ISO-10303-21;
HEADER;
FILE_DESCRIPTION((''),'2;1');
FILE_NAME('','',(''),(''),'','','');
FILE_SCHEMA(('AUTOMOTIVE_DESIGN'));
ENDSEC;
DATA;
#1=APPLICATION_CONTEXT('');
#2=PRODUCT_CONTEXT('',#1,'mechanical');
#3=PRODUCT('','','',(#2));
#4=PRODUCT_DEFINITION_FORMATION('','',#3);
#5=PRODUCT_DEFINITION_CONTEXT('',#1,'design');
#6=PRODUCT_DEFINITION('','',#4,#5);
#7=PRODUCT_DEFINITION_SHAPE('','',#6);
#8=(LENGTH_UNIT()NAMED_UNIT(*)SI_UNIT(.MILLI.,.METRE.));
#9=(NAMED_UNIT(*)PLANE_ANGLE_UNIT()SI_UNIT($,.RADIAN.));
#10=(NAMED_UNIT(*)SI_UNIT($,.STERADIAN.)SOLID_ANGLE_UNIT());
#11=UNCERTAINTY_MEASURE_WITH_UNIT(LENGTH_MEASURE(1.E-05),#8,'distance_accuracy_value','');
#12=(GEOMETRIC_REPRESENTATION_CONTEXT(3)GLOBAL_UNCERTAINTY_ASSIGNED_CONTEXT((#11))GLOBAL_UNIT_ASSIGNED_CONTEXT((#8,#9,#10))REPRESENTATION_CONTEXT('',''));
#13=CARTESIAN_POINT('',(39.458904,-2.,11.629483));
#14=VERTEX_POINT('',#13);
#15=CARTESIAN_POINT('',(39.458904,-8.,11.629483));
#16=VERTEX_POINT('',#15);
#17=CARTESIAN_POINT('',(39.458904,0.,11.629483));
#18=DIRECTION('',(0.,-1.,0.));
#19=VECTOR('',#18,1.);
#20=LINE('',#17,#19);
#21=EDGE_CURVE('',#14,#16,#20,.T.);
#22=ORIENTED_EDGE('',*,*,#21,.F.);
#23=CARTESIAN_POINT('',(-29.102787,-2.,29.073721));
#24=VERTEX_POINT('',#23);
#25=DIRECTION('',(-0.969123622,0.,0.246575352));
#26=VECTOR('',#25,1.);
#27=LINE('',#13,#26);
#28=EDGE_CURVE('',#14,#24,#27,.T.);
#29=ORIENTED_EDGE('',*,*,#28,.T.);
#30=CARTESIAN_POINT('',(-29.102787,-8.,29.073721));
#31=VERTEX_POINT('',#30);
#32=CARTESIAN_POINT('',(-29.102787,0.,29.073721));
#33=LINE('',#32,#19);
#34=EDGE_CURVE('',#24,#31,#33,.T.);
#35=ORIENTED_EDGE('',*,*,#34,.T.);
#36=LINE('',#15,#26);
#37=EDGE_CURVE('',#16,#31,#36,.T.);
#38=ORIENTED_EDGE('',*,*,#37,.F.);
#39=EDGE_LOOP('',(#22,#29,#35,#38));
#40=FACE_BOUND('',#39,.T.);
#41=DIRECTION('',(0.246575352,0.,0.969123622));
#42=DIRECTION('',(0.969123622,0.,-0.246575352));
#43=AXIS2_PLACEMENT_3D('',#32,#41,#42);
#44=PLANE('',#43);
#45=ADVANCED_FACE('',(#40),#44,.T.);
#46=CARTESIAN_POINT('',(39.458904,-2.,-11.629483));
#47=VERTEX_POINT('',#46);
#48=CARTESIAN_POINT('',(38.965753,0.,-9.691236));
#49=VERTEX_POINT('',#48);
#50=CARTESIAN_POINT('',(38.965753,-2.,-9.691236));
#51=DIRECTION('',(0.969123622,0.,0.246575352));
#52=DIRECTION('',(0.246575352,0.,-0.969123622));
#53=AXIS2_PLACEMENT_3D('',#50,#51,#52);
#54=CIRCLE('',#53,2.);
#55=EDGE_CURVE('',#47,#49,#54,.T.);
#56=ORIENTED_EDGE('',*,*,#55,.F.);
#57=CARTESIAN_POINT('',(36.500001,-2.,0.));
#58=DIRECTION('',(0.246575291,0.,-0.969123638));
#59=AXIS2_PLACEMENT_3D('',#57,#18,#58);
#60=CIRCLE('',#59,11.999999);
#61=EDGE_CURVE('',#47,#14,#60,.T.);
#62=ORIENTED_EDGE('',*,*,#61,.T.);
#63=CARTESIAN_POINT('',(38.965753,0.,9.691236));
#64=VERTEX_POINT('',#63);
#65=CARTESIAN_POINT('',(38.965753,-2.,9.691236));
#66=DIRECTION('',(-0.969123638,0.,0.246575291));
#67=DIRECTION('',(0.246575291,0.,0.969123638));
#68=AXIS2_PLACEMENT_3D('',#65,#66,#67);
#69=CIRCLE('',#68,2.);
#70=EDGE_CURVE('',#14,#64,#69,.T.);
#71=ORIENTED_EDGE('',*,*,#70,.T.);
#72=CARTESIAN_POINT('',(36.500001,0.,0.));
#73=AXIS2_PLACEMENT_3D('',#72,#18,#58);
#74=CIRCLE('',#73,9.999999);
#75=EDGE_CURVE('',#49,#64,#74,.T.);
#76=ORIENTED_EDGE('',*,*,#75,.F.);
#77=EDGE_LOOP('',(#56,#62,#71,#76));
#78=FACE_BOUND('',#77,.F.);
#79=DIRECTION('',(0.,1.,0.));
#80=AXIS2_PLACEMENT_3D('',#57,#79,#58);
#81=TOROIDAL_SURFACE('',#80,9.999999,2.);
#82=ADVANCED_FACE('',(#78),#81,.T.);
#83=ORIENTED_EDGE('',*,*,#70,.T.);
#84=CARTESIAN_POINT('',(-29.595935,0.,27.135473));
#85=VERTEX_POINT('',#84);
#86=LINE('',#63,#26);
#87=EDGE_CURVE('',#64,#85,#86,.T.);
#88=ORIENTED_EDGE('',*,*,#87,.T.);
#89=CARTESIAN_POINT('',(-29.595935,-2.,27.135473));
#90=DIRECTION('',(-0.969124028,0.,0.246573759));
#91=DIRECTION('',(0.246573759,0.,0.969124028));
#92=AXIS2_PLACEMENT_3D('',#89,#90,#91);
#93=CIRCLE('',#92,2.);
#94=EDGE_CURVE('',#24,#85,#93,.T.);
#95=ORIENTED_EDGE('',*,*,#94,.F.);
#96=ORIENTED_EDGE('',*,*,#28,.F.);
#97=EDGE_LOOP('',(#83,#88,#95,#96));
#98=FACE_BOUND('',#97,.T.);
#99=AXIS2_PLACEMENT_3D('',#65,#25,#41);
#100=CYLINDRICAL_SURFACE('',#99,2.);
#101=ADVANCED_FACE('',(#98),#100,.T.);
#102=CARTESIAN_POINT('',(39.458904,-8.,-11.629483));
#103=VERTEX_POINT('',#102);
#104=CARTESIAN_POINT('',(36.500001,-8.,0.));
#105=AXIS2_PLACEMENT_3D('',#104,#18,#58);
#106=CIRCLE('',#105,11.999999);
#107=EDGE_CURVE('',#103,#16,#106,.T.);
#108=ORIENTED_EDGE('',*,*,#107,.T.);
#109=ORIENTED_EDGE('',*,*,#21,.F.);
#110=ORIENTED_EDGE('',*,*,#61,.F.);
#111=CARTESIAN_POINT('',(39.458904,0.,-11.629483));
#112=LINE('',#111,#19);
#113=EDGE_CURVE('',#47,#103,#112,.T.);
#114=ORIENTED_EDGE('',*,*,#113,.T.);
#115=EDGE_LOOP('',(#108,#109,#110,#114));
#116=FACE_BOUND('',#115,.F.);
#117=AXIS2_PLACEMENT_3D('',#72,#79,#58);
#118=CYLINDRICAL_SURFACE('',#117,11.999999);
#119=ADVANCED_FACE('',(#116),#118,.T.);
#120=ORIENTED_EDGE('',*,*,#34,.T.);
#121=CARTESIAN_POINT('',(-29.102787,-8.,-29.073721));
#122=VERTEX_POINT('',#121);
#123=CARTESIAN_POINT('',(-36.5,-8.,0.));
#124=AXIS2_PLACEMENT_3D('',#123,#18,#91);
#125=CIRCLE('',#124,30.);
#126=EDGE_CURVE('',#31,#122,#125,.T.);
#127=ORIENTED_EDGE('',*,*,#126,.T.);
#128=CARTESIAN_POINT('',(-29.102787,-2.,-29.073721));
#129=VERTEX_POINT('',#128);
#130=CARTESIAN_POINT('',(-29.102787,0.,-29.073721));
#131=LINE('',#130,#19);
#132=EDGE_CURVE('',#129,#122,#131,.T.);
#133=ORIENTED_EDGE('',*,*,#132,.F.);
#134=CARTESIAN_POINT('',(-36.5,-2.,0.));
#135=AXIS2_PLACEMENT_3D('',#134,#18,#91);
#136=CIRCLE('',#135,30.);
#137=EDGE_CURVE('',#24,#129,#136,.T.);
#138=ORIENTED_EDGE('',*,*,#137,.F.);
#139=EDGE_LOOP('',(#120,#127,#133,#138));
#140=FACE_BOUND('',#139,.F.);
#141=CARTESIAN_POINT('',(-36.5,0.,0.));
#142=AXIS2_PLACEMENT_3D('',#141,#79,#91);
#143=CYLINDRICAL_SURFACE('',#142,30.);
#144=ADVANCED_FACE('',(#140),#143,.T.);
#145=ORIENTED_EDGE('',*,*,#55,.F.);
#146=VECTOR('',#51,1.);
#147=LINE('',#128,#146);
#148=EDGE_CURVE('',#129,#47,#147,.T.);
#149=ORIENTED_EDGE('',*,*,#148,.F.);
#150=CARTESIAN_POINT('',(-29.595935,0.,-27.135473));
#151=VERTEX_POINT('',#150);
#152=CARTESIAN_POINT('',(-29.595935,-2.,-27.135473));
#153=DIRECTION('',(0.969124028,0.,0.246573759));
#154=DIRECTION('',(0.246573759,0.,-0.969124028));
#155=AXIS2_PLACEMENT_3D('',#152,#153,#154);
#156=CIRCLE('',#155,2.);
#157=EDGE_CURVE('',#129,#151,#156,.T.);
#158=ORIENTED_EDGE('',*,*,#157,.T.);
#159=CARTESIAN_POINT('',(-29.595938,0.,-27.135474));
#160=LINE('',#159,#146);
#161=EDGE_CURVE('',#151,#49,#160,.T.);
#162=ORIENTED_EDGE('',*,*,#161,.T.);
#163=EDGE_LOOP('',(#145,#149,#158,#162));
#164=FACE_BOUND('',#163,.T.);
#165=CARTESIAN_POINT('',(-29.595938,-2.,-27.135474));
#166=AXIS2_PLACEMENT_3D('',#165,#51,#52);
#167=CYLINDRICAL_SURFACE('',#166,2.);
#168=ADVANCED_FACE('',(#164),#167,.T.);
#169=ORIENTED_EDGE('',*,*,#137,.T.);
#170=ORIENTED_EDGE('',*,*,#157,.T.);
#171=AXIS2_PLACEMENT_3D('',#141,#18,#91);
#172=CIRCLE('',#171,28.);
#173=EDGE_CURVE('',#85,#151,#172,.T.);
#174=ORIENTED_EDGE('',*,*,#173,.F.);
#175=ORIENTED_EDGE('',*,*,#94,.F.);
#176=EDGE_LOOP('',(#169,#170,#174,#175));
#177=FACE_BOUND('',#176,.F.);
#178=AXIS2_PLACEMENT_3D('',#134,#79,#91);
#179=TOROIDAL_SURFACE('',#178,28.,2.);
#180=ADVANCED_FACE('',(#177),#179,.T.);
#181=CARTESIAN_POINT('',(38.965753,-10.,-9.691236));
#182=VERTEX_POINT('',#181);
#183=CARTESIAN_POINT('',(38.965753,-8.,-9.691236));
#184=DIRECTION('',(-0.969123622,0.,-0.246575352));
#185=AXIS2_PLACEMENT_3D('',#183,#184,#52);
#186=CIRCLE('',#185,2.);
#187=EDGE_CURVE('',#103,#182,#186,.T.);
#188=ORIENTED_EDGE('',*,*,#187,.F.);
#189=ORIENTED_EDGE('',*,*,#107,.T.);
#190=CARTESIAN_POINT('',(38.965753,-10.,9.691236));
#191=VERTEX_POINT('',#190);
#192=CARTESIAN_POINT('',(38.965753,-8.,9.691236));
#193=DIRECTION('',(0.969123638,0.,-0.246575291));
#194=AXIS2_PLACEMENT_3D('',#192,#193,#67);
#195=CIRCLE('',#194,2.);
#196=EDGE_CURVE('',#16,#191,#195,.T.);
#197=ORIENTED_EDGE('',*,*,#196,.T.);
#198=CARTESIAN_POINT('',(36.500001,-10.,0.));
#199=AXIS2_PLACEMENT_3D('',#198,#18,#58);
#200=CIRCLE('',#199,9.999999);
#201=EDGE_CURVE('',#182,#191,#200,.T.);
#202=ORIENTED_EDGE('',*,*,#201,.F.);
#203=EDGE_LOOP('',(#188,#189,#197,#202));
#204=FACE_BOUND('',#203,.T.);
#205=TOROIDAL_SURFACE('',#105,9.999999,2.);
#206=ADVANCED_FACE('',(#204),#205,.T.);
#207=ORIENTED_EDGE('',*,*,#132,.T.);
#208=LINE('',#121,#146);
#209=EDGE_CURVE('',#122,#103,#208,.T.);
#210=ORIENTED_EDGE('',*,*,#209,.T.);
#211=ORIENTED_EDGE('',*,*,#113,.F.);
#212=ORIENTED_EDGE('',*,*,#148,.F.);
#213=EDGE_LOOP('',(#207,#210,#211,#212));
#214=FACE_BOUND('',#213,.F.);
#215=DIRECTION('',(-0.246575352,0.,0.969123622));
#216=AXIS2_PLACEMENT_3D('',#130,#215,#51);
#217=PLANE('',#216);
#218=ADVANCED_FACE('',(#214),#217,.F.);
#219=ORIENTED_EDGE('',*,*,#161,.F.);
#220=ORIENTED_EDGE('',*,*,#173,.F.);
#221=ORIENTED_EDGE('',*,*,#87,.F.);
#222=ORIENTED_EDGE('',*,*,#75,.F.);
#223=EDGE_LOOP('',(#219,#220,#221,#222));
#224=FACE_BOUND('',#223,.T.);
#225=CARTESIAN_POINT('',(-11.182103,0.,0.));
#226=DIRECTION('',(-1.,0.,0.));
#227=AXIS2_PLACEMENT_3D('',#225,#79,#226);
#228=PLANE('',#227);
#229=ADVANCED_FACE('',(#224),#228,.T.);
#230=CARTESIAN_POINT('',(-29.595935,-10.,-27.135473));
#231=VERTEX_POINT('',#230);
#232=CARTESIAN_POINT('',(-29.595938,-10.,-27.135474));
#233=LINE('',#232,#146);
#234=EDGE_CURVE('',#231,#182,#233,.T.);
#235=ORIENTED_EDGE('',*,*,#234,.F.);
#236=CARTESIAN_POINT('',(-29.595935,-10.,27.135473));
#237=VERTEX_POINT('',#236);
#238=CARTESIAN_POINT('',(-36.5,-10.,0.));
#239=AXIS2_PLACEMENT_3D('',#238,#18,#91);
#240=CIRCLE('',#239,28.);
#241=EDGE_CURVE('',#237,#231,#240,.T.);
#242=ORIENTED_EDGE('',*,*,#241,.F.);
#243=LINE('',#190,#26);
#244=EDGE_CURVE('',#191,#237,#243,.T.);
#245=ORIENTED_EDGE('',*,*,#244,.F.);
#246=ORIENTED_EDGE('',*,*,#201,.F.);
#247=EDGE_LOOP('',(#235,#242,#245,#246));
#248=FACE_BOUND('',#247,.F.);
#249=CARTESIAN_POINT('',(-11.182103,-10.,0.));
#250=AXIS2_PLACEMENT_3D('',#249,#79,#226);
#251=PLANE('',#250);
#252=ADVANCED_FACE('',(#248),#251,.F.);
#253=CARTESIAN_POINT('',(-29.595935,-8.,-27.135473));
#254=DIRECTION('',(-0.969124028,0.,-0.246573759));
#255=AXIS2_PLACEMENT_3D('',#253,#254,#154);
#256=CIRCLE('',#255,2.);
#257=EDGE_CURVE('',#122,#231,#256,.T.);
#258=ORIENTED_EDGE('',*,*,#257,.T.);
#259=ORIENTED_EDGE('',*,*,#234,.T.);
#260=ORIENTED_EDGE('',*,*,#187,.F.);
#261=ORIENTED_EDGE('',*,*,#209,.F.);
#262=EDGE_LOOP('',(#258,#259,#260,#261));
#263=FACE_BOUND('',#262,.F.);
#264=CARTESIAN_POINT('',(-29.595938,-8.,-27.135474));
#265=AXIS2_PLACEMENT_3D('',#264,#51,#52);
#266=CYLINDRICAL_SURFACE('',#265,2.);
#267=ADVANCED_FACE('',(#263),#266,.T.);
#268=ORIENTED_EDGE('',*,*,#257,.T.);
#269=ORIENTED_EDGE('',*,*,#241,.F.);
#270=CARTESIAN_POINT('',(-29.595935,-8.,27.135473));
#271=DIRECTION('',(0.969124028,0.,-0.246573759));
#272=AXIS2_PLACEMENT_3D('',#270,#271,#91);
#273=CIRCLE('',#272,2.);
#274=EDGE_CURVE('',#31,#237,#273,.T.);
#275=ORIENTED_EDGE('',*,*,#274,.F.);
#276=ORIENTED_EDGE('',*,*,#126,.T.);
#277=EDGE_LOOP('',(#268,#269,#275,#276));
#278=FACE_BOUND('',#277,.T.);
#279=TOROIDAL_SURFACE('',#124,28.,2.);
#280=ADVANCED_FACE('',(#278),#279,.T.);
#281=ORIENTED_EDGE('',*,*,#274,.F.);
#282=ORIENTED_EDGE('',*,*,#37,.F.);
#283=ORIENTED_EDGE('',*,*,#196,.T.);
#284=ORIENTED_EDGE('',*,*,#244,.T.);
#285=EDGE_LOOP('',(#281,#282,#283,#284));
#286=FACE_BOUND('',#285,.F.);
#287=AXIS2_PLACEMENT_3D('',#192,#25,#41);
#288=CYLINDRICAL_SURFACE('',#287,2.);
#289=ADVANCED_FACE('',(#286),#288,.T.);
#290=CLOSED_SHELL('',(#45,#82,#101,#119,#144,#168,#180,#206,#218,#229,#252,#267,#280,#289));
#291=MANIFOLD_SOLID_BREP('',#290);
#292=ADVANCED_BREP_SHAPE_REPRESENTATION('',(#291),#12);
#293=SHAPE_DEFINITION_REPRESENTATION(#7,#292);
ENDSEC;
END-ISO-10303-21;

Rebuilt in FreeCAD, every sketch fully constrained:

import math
import FreeCAD as App
import Part
import Sketcher


def edges_at(feature, points):
    """Names of the edges that pass closest to the given points."""
    edges = feature.Shape.Edges
    near = lambda p: min(range(len(edges)), key=lambda i: edges[i].distToShape(Part.Vertex(*p))[0])
    return sorted({f"Edge{near(p) + 1}" for p in points})

doc = App.newDocument("Part")
params = doc.addObject("Spreadsheet::Sheet", "Params")
for row, (alias, value) in enumerate([
    ("sketch1_radius", "30 mm"),
    ("sketch1_radius2", "11.999999 mm"),
    ("pad1_length", "10 mm"),
    ("fillet_radius", "2 mm"),
], start=1):
    params.set(f"A{row}", alias)
    params.set(f"B{row}", "=" + value)
    params.setAlias(f"B{row}", alias)

body = doc.addObject("PartDesign::Body", "Body")

# Sketch on XZ plane
sketch1 = doc.addObject("Sketcher::SketchObject", "Sketch")
body.addObject(sketch1)
sketch1.AttachmentSupport = (doc.XZ_Plane, [""])
sketch1.MapMode = "FlatFace"
sketch1.addGeometry(Part.LineSegment(App.Vector(39.458904, 11.629483, 0), App.Vector(-29.102787, 29.073721, 0)), False)
sketch1.addGeometry(Part.ArcOfCircle(Part.Circle(App.Vector(-36.5, 0, 0), App.Vector(0, 0, 1), 30), math.radians(75.725143), math.radians(284.274857)), False)
sketch1.addGeometry(Part.LineSegment(App.Vector(-29.102787, -29.073721, 0), App.Vector(39.458904, -11.629483, 0)), False)
sketch1.addGeometry(Part.ArcOfCircle(Part.Circle(App.Vector(36.500001, 0, 0), App.Vector(0, 0, 1), 11.999999), math.radians(-75.725052), math.radians(75.725052)), False)
sketch1.addConstraint(Sketcher.Constraint("Coincident", 0, 2, 1, 1))
sketch1.addConstraint(Sketcher.Constraint("Coincident", 1, 2, 2, 1))
sketch1.addConstraint(Sketcher.Constraint("Coincident", 2, 2, 3, 1))
sketch1.addConstraint(Sketcher.Constraint("Coincident", 3, 2, 0, 1))
sketch1.addConstraint(Sketcher.Constraint("PointOnObject", 1, 3, -1))
sketch1.addConstraint(Sketcher.Constraint("PointOnObject", 3, 3, -1))
sketch1.addConstraint(Sketcher.Constraint("Radius", 1, 30.0))
sketch1.addConstraint(Sketcher.Constraint("Radius", 3, 11.999999))
sketch1.addConstraint(Sketcher.Constraint("DistanceX", 1, 3, 3, 3, 73.000001))
sketch1.addConstraint(Sketcher.Constraint("DistanceX", 1, 3, -1, 1, 36.5))
sketch1.addConstraint(Sketcher.Constraint("DistanceY", -1, 1, 0, 2, 29.073721))
sketch1.addConstraint(Sketcher.Constraint("DistanceY", 1, 2, -1, 1, 29.073721))
sketch1.addConstraint(Sketcher.Constraint("DistanceX", 1, 2, 2, 2, 68.561691))
sketch1.addConstraint(Sketcher.Constraint("DistanceX", 0, 2, 3, 2, 68.561691))
sketch1.setExpression("Constraints[6]", "Params.sketch1_radius")
sketch1.setExpression("Constraints[7]", "Params.sketch1_radius2")
pad1 = doc.addObject("PartDesign::Pad", "Pad")
body.addObject(pad1)
pad1.Profile = sketch1
pad1.setExpression("Length", "Params.pad1_length")
doc.recompute()

fillet = doc.addObject("PartDesign::Fillet", "Fillet")
body.addObject(fillet)
fillet.Base = (pad1, edges_at(pad1, [
    (-66.5, -10, 0),
    (5.178, -10, 20.352),
    (48.5, -10, 0),
    (5.178, -10, -20.352),
    (-66.5, 0, 0),
    (5.178, 0, 20.352),
    (48.5, 0, 0),
    (5.178, 0, -20.352),
]))
fillet.setExpression("Radius", "Params.fillet_radius")

doc.recompute()
